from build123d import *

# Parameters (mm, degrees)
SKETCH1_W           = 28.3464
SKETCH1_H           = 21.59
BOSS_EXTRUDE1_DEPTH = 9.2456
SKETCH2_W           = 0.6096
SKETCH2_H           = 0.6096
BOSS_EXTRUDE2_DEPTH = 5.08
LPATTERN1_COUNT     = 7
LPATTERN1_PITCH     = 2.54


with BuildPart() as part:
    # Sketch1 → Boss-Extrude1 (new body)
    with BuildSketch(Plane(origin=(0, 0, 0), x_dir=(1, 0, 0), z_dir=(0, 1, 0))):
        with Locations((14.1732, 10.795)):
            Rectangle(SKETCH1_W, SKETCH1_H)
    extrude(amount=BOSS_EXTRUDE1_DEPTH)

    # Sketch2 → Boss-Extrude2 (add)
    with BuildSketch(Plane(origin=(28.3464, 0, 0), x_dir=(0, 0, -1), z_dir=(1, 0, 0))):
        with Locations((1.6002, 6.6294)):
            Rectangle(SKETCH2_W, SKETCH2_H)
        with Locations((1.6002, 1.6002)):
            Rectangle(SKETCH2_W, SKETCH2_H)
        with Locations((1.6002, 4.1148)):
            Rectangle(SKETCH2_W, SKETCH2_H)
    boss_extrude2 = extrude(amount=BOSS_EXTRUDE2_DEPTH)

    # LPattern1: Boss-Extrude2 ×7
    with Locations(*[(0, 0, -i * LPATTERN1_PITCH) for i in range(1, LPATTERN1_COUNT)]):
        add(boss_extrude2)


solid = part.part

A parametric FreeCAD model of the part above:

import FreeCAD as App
import Part
import Sketcher

V = App.Vector
Q = App.Units.Quantity

doc = App.newDocument("Part")
body = doc.addObject("PartDesign::Body", "Body")

# Sketch on XZ plane
sketch1 = doc.addObject("Sketcher::SketchObject", "Sketch")
body.addObject(sketch1)
sketch1.AttachmentSupport = (doc.XZ_Plane, [""])
sketch1.MapMode = "FlatFace"
sketch1.addGeometry([
    Part.LineSegment(V(0, -22, 0), V(0, 0, 0)),
    Part.LineSegment(V(0, 0, 0), V(28, 0, 0)),
    Part.LineSegment(V(28, 0, 0), V(28, -22, 0)),
    Part.LineSegment(V(28, -22, 0), V(0, -22, 0)),
], False)
sketch1.addConstraint([
    Sketcher.Constraint("Coincident", 0, 2, 1, 1),
    Sketcher.Constraint("Coincident", 1, 2, 2, 1),
    Sketcher.Constraint("Coincident", 2, 2, 3, 1),
    Sketcher.Constraint("Coincident", 3, 2, 0, 1),
    Sketcher.Constraint("Vertical", 0),
    Sketcher.Constraint("Horizontal", 1),
    Sketcher.Constraint("Vertical", 2),
    Sketcher.Constraint("Horizontal", 3),
    Sketcher.Constraint("Coincident", 0, 2, -1, 1),
    Sketcher.Constraint("DistanceY", 0, 1, 0, 2, Q("0.85 in")),
    Sketcher.Constraint("DistanceX", 1, 1, 1, 2, Q("1.116 in")),
])
pad1 = doc.addObject("PartDesign::Pad", "Pad")
body.addObject(pad1)
pad1.Profile = sketch1
pad1.Length = Q("0.364 in")
pad1.Reversed = True

# Sketch on YZ plane
sketch2 = doc.addObject("Sketcher::SketchObject", "Sketch001")
body.addObject(sketch2)
sketch2.AttachmentSupport = (doc.YZ_Plane, [""])
sketch2.MapMode = "FlatFace"
sketch2.AttachmentOffset = App.Placement(V(0, 0, 1.116 * 25.4), App.Rotation())
sketch2.addGeometry([
    Part.LineSegment(V(6.9, -1.3, 0), V(6.3, -1.3, 0)),  # 0
    Part.LineSegment(V(6.3, -1.3, 0), V(6.3, -1.9, 0)),  # 1
    Part.LineSegment(V(6.3, -1.9, 0), V(6.9, -1.9, 0)),  # 2
    Part.LineSegment(V(6.9, -1.9, 0), V(6.9, -1.3, 0)),  # 3
    Part.LineSegment(V(1.9, -1.3, 0), V(1.3, -1.3, 0)),  # 4
    Part.LineSegment(V(1.3, -1.3, 0), V(1.3, -1.9, 0)),  # 5
    Part.LineSegment(V(1.3, -1.9, 0), V(1.9, -1.9, 0)),  # 6
    Part.LineSegment(V(1.9, -1.9, 0), V(1.9, -1.3, 0)),  # 7
    Part.LineSegment(V(4.4, -1.3, 0), V(3.8, -1.3, 0)),  # 8
    Part.LineSegment(V(3.8, -1.3, 0), V(3.8, -1.9, 0)),  # 9
    Part.LineSegment(V(3.8, -1.9, 0), V(4.4, -1.9, 0)),  # 10
    Part.LineSegment(V(4.4, -1.9, 0), V(4.4, -1.3, 0)),  # 11
], False)
sketch2.addConstraint([
    Sketcher.Constraint("Coincident", 0, 2, 1, 1),
    Sketcher.Constraint("Coincident", 1, 2, 2, 1),
    Sketcher.Constraint("Coincident", 2, 2, 3, 1),
    Sketcher.Constraint("Coincident", 3, 2, 0, 1),
    Sketcher.Constraint("Coincident", 4, 2, 5, 1),
    Sketcher.Constraint("Coincident", 5, 2, 6, 1),
    Sketcher.Constraint("Coincident", 6, 2, 7, 1),
    Sketcher.Constraint("Coincident", 7, 2, 4, 1),
    Sketcher.Constraint("Coincident", 8, 2, 9, 1),
    Sketcher.Constraint("Coincident", 9, 2, 10, 1),
    Sketcher.Constraint("Coincident", 10, 2, 11, 1),
    Sketcher.Constraint("Coincident", 11, 2, 8, 1),
    Sketcher.Constraint("Horizontal", 0),
    Sketcher.Constraint("Vertical", 1),
    Sketcher.Constraint("Horizontal", 2),
    Sketcher.Constraint("Vertical", 3),
    Sketcher.Constraint("Horizontal", 4),
    Sketcher.Constraint("Vertical", 5),
    Sketcher.Constraint("Horizontal", 6),
    Sketcher.Constraint("Vertical", 7),
    Sketcher.Constraint("Horizontal", 8),
    Sketcher.Constraint("Vertical", 9),
    Sketcher.Constraint("Horizontal", 10),
    Sketcher.Constraint("Vertical", 11),
    Sketcher.Constraint("Horizontal", 3, 2, 4, 2),
    Sketcher.Constraint("Horizontal", 2, 2, 5, 2),
    Sketcher.Constraint("Horizontal", 7, 2, 8, 2),
    Sketcher.Constraint("Horizontal", 6, 2, 9, 2),
    Sketcher.Constraint("Equal", 2, 4),
    Sketcher.Constraint("Equal", 6, 8),
    Sketcher.Constraint("Equal", 10, 1),
    Sketcher.Constraint("DistanceX", 0, 2, 0, 1, Q("0.024 in")),
    Sketcher.Constraint("DistanceX", -1, 1, 8, 2, Q("0.15 in")),
    Sketcher.Constraint("DistanceX", -1, 1, 0, 2, Q("0.249 in")),
    Sketcher.Constraint("DistanceY", 0, 2, -1, 1, Q("0.051 in")),
    Sketcher.Constraint("DistanceX", -1, 1, 4, 2, Q("0.051 in")),
])
pad2 = doc.addObject("PartDesign::Pad", "Pad001")
body.addObject(pad2)
pad2.Profile = sketch2
pad2.Length = Q("0.2 in")
doc.recompute()

linearpattern = doc.addObject("PartDesign::LinearPattern", "LinearPattern")
body.addObject(linearpattern)
linearpattern.Originals = [pad2]
linearpattern.Direction = (doc.Z_Axis, [""])
linearpattern.Mode = "offset"
linearpattern.Offset = Q("0.1 in")
linearpattern.Occurrences = 7
linearpattern.Reversed = True
body.Tip = linearpattern

doc.recompute()
